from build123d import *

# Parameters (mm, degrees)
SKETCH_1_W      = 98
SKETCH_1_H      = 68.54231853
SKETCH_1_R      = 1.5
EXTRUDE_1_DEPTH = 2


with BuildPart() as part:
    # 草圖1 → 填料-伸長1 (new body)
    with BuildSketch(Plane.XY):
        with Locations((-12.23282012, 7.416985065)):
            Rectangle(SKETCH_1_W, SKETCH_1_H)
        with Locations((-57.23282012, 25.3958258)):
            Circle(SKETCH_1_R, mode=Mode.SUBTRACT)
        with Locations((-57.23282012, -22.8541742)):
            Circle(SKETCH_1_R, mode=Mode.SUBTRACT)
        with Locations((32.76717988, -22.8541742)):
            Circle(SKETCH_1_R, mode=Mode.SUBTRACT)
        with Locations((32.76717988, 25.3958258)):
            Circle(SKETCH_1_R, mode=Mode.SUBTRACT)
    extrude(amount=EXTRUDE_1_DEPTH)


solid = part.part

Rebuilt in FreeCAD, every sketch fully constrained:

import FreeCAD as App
import Part
import Sketcher
Q = App.Units.Quantity


def add_polygon(sketch, points):
    """Adds a closed chain of lines whose ends are joined by coincident constraints."""
    first, n = sketch.GeometryCount, len(points)
    for a, b in zip(points, points[1:] + points[:1]):
        sketch.addGeometry(Part.LineSegment(App.Vector(*a, 0), App.Vector(*b, 0)), False)
    for i in range(n):
        sketch.addConstraint(Sketcher.Constraint("Coincident", first + i, 2, first + (i + 1) % n, 1))

doc = App.newDocument("Part")
params = doc.addObject("Spreadsheet::Sheet", "Params")
for row, (alias, value) in enumerate([
    ("sketch1_diameter", "3 mm"),
    ("sketch1_width", "98 mm"),
    ("pad1_length", "2 mm"),
], start=1):
    params.set(f"A{row}", alias)
    params.set(f"B{row}", "=" + value)
    params.setAlias(f"B{row}", alias)

body = doc.addObject("PartDesign::Body", "Body")

# Sketch on XY plane
sketch1 = body.newObject("Sketcher::SketchObject", "Sketch")
sketch1.AttachmentSupport = (doc.getObject("XY_Plane"), [""])
sketch1.MapMode = "FlatFace"
add_polygon(sketch1, [(-61.2, 41.7), (-61.2, -26.9), (36.8, -26.9), (36.8, 41.7)])  # lines 0-3
sketch1.addGeometry(Part.Circle(App.Vector(-57.2, -22.9, 0), App.Vector(0, 0, 1), 1.5), False)  # 4
sketch1.addGeometry(Part.Circle(App.Vector(32.8, -22.9, 0), App.Vector(0, 0, 1), 1.5), False)  # 5
sketch1.addGeometry(Part.Circle(App.Vector(-57.2, 25.4, 0), App.Vector(0, 0, 1), 1.5), False)  # 6
sketch1.addGeometry(Part.Circle(App.Vector(32.8, 25.4, 0), App.Vector(0, 0, 1), 1.5), False)  # 7
sketch1.addConstraint([
    Sketcher.Constraint("Vertical", 0),
    Sketcher.Constraint("Horizontal", 1),
    Sketcher.Constraint("Vertical", 2),
    Sketcher.Constraint("Horizontal", 3),
    Sketcher.Constraint("Equal", 4, 5),
    Sketcher.Constraint("Equal", 5, 6),
    Sketcher.Constraint("Equal", 6, 7),
    Sketcher.Constraint("Horizontal", 4, 3, 5, 3),
    Sketcher.Constraint("Horizontal", 6, 3, 7, 3),
    Sketcher.Constraint("Vertical", 4, 3, 6, 3),
    Sketcher.Constraint("Vertical", 5, 3, 7, 3),
    Sketcher.Constraint("Diameter", 4, Q("3 mm")),
    Sketcher.Constraint("DistanceX", 1, 1, 1, 2, Q("98 mm")),
    Sketcher.Constraint("DistanceX", 4, 3, 5, 3, Q("90 mm")),
    Sketcher.Constraint("DistanceX", 0, 2, 4, 3, Q("4 mm")),
    Sketcher.Constraint("DistanceY", 0, 2, 4, 3, Q("4 mm")),
    Sketcher.Constraint("DistanceY", 4, 3, 6, 3, Q("48.25 mm")),
    Sketcher.Constraint("DistanceY", 0, 2, 0, 1, Q("68.542319 mm")),
    Sketcher.Constraint("DistanceX", 4, 3, -1, 1, Q("57.23282 mm")),
    Sketcher.Constraint("DistanceY", 4, 3, -1, 1, Q("22.854174 mm")),
])
sketch1.setExpression("Constraints[15]", "Params.sketch1_diameter")
sketch1.setExpression("Constraints[16]", "Params.sketch1_width")
pad1 = body.newObject("PartDesign::Pad", "Pad")
pad1.Profile = sketch1
pad1.setExpression("Length", "Params.pad1_length")

doc.recompute()
